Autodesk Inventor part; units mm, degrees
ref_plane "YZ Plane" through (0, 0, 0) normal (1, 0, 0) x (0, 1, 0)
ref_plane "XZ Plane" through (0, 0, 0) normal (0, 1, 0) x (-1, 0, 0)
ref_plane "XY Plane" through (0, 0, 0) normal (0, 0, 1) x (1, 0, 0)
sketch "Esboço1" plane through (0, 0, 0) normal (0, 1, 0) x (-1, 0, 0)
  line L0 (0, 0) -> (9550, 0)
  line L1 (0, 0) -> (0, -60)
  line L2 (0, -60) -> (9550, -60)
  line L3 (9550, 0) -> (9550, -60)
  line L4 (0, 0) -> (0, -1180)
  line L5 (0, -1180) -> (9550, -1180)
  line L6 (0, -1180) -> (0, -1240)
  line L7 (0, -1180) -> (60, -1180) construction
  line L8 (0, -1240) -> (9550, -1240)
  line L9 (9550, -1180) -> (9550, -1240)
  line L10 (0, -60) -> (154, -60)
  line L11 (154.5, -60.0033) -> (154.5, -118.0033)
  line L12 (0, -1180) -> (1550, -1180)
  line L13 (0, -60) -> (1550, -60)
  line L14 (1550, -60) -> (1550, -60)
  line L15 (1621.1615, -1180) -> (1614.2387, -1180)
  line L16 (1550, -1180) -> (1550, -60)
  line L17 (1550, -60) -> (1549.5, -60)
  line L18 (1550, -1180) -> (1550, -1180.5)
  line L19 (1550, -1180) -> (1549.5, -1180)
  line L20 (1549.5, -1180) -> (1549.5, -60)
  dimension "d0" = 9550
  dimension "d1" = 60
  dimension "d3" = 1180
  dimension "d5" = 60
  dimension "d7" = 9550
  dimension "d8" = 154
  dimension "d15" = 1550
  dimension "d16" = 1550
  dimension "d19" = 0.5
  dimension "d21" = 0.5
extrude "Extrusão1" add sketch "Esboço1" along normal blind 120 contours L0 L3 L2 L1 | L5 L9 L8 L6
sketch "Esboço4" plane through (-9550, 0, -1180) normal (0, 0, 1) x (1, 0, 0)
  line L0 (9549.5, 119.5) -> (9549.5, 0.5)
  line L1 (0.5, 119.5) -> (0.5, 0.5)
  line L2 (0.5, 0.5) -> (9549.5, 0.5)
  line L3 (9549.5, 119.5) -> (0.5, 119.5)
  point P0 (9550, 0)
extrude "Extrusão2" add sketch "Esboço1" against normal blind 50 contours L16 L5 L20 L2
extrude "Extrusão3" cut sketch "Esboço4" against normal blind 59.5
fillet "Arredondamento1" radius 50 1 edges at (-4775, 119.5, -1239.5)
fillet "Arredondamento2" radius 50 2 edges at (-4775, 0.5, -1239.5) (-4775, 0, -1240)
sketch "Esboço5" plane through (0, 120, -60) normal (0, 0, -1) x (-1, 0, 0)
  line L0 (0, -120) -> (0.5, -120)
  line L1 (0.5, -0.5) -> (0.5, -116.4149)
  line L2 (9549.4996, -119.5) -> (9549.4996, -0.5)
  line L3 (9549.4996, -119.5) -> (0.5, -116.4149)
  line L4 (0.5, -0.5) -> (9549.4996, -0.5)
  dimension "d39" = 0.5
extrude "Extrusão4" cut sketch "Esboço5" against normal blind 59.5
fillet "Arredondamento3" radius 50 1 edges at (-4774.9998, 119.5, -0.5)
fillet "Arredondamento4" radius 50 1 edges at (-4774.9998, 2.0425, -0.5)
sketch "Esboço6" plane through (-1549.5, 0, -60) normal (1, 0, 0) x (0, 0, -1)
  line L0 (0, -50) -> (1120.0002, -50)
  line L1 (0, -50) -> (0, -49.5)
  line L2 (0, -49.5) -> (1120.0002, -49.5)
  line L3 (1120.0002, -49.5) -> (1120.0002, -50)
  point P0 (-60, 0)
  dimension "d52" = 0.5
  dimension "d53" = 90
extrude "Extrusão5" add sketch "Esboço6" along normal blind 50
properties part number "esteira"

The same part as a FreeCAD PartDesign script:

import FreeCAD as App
import Part
import Sketcher


def edges_at(feature, points):
    """Names of the edges that pass closest to the given points."""
    edges = feature.Shape.Edges
    near = lambda p: min(range(len(edges)), key=lambda i: edges[i].distToShape(Part.Vertex(*p))[0])
    return sorted({f"Edge{near(p) + 1}" for p in points})


def add_polygon(sketch, points):
    """Adds a closed chain of lines whose ends are joined by coincident constraints."""
    first, n = sketch.GeometryCount, len(points)
    for a, b in zip(points, points[1:] + points[:1]):
        sketch.addGeometry(Part.LineSegment(App.Vector(*a, 0), App.Vector(*b, 0)), False)
    for i in range(n):
        sketch.addConstraint(Sketcher.Constraint("Coincident", first + i, 2, first + (i + 1) % n, 1))

doc = App.newDocument("Part")
body = doc.addObject("PartDesign::Body", "Body")
body.AllowCompound = True

# Sketch on XZ plane
sketch1 = body.newObject("Sketcher::SketchObject", "Sketch")
sketch1.AttachmentSupport = (doc.getObject("XZ_Plane"), [""])
sketch1.MapMode = "FlatFace"
add_polygon(sketch1, [(-9550, 0), (0, 0), (0, -60), (-9550, -60)])  # lines 0-3
add_polygon(sketch1, [(-9550, -1180), (0, -1180), (0, -1240), (-9550, -1240)])  # lines 4-7
sketch1.addConstraint([
    Sketcher.Constraint("Horizontal", 0),
    Sketcher.Constraint("Vertical", 1),
    Sketcher.Constraint("Horizontal", 2),
    Sketcher.Constraint("Vertical", 3),
    Sketcher.Constraint("Horizontal", 4),
    Sketcher.Constraint("Vertical", 5),
    Sketcher.Constraint("Horizontal", 6),
    Sketcher.Constraint("Vertical", 7),
    Sketcher.Constraint("Coincident", 0, 2, -1, 1),
    Sketcher.Constraint("PointOnObject", 4, 2, -2),
    Sketcher.Constraint("Vertical", 3, 2, 6, 2),
    Sketcher.Constraint("Equal", 3, 5),
    Sketcher.Constraint("DistanceX", 0, 1, 0, 2, 9550.0),
    Sketcher.Constraint("DistanceY", 1, 2, 1, 1, 60.0),
    Sketcher.Constraint("DistanceY", 4, 2, -1, 1, 1180.0),
])
pad1 = body.newObject("PartDesign::Pad", "Pad")
pad1.Profile = sketch1
pad1.Length = 120
pad1.Reversed = True

# Sketch on XZ plane
sketch2 = body.newObject("Sketcher::SketchObject", "Sketch001")
sketch2.AttachmentSupport = (doc.getObject("XZ_Plane"), [""])
sketch2.MapMode = "FlatFace"
add_polygon(sketch2, [(-1550, -1180), (-1550, -60), (-1549.5, -60), (-1549.5, -1180)])  # lines 0-3
sketch2.addConstraint([
    Sketcher.Constraint("Vertical", 0),
    Sketcher.Constraint("Horizontal", 1),
    Sketcher.Constraint("Vertical", 2),
    Sketcher.Constraint("Horizontal", 3),
    Sketcher.Constraint("DistanceX", 1, 1, 1, 2, 0.5),
    Sketcher.Constraint("DistanceX", 0, 2, -1, 1, 1550.0),
    Sketcher.Constraint("DistanceY", 0, 2, -1, 1, 60.0),
    Sketcher.Constraint("DistanceY", 2, 2, -1, 1, 1180.0),
])
pad2 = body.newObject("PartDesign::Pad", "Pad001")
pad2.Profile = sketch2
pad2.Length = 50

# Sketch on XY plane
sketch3 = body.newObject("Sketcher::SketchObject", "Sketch002")
sketch3.AttachmentSupport = (doc.getObject("XY_Plane"), [""])
sketch3.MapMode = "FlatFace"
sketch3.AttachmentOffset = App.Placement(App.Vector(0, 0, -1180), App.Rotation())
add_polygon(sketch3, [(-0.5, 0.5), (-0.5, 119.5), (-9549.5, 119.5), (-9549.5, 0.5)])  # lines 0-3
sketch3.addConstraint([
    Sketcher.Constraint("Vertical", 0),
    Sketcher.Constraint("Horizontal", 1),
    Sketcher.Constraint("Vertical", 2),
    Sketcher.Constraint("Horizontal", 3),
    Sketcher.Constraint("DistanceX", 1, 2, 1, 1, 9549.0),
    Sketcher.Constraint("DistanceY", 0, 1, 0, 2, 119.0),
    Sketcher.Constraint("DistanceX", 0, 2, -1, 1, 0.5),
    Sketcher.Constraint("DistanceY", -1, 1, 0, 2, 119.5),
])
pocket1 = body.newObject("PartDesign::Pocket", "Pocket")
pocket1.Profile = sketch3
pocket1.Length = 59.5
doc.recompute()

fillet = body.newObject("PartDesign::Fillet", "Fillet")
fillet.Base = (pocket1, edges_at(pocket1, [(-4775, 119.5, -1239.5)]))
fillet.Radius = 50
doc.recompute()

fillet2 = body.newObject("PartDesign::Fillet", "Fillet001")
fillet2.Base = (fillet, edges_at(fillet, [(-4775, 0.5, -1239.5), (-4775, 0, -1240)]))
fillet2.Radius = 50

# Sketch on XY plane
sketch4 = body.newObject("Sketcher::SketchObject", "Sketch003")
sketch4.AttachmentSupport = (doc.getObject("XY_Plane"), [""])
sketch4.MapMode = "FlatFace"
sketch4.AttachmentOffset = App.Placement(App.Vector(0, 0, -60), App.Rotation())
add_polygon(sketch4, [(-9549.4996, 119.5), (-0.5, 119.5), (-0.5, 3.5851), (-9549.4996, 0.5)])  # lines 0-3
sketch4.addConstraint([
    Sketcher.Constraint("Horizontal", 0),
    Sketcher.Constraint("Vertical", 1),
    Sketcher.Constraint("Vertical", 3),
    Sketcher.Constraint("DistanceX", 0, 2, -1, 1, 0.5),
    Sketcher.Constraint("DistanceY", -1, 1, 2, 2, 0.5),
    Sketcher.Constraint("DistanceY", 3, 1, 3, 2, 119.0),
    Sketcher.Constraint("Distance", 2, 9549.0),
    Sketcher.Constraint("DistanceY", 1, 2, 1, 1, 115.915),
])
pocket2 = body.newObject("PartDesign::Pocket", "Pocket001")
pocket2.Profile = sketch4
pocket2.Length = 59.5
pocket2.Reversed = True
doc.recompute()

fillet3 = body.newObject("PartDesign::Fillet", "Fillet002")
fillet3.Base = (pocket2, edges_at(pocket2, [(-4775, 119.5, -0.5)]))
fillet3.Radius = 50
doc.recompute()

fillet4 = body.newObject("PartDesign::Fillet", "Fillet003")
fillet4.Base = (fillet3, edges_at(fillet3, [(-4775, 2.042, -0.5)]))
fillet4.Radius = 50

# Sketch on YZ plane
sketch5 = body.newObject("Sketcher::SketchObject", "Sketch004")
sketch5.AttachmentSupport = (doc.getObject("YZ_Plane"), [""])
sketch5.MapMode = "FlatFace"
sketch5.AttachmentOffset = App.Placement(App.Vector(0, 0, -1549.5), App.Rotation())
add_polygon(sketch5, [(-49.5, -60), (-50, -60), (-50, -1180.0002), (-49.5, -1180.0002)])  # lines 0-3
sketch5.addConstraint([
    Sketcher.Constraint("Horizontal", 0),
    Sketcher.Constraint("Vertical", 1),
    Sketcher.Constraint("Horizontal", 2),
    Sketcher.Constraint("Vertical", 3),
    Sketcher.Constraint("DistanceX", 0, 2, 0, 1, 0.5),
    Sketcher.Constraint("DistanceX", 0, 2, -1, 1, 50.0),
    Sketcher.Constraint("DistanceY", 0, 2, -1, 1, 60.0),
    Sketcher.Constraint("DistanceY", 1, 2, 1, 1, 1120.0002),
])
pad3 = body.newObject("PartDesign::Pad", "Pad002")
pad3.Profile = sketch5
pad3.Length = 50

doc.recompute()
